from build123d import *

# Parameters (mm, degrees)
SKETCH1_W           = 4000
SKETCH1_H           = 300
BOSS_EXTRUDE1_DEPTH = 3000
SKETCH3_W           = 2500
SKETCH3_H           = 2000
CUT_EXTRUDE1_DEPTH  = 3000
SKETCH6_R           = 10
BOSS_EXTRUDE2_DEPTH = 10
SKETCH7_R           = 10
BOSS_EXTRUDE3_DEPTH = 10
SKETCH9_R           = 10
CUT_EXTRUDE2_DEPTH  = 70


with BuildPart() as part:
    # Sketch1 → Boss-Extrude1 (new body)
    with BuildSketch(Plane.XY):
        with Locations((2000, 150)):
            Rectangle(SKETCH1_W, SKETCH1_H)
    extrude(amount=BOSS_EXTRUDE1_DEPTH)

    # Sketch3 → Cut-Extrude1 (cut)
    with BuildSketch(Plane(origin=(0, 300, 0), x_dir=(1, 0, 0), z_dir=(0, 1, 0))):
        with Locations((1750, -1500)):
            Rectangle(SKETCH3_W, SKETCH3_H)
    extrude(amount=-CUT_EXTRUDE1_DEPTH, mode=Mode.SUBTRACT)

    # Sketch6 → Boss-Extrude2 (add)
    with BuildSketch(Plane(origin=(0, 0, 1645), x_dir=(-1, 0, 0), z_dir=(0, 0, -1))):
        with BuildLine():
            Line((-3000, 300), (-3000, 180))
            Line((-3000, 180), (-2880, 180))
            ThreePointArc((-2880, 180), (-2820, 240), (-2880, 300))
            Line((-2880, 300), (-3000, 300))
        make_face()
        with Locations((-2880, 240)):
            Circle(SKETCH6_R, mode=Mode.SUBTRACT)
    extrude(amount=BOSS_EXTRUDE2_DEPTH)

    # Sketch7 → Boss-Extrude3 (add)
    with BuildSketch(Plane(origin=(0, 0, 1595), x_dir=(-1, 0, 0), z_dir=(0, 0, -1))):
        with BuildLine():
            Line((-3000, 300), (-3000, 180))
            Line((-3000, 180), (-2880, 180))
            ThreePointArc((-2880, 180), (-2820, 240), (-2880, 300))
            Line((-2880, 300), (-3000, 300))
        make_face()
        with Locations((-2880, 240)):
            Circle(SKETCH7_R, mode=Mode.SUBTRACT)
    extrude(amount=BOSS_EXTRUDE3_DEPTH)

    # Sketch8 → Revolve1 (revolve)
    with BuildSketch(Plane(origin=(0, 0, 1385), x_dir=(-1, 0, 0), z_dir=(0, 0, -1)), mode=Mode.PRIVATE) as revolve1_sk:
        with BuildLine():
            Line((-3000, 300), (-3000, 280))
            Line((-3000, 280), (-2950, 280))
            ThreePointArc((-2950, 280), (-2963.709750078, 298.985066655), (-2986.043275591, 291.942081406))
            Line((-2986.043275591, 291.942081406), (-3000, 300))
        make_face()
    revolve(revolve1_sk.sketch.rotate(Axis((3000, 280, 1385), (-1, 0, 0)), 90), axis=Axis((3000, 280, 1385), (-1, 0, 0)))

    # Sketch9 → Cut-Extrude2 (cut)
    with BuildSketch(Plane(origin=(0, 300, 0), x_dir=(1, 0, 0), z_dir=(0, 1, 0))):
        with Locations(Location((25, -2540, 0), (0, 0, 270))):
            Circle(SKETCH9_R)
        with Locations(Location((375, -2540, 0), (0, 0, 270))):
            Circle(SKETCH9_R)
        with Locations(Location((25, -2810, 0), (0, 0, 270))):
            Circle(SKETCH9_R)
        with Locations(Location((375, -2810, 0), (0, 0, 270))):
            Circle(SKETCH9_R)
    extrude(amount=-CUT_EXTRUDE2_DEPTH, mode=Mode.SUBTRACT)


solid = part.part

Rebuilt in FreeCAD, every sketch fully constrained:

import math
import FreeCAD as App
import Part
import Sketcher

V = App.Vector
Q = App.Units.Quantity

doc = App.newDocument("Part")
body = doc.addObject("PartDesign::Body", "Body")

# Sketch on XY plane
sketch1 = body.newObject("Sketcher::SketchObject", "Sketch")
sketch1.AttachmentSupport = (doc.getObject("XY_Plane"), [""])
sketch1.MapMode = "FlatFace"
sketch1.addGeometry([
    Part.LineSegment(V(0, 300, 0), V(0, 0, 0)),
    Part.LineSegment(V(0, 0, 0), V(4000, 0, 0)),
    Part.LineSegment(V(4000, 0, 0), V(4000, 300, 0)),
    Part.LineSegment(V(4000, 300, 0), V(0, 300, 0)),
], False)
sketch1.addConstraint([
    Sketcher.Constraint("Coincident", 0, 2, 1, 1),
    Sketcher.Constraint("Coincident", 1, 2, 2, 1),
    Sketcher.Constraint("Coincident", 2, 2, 3, 1),
    Sketcher.Constraint("Coincident", 3, 2, 0, 1),
    Sketcher.Constraint("Vertical", 0),
    Sketcher.Constraint("Horizontal", 1),
    Sketcher.Constraint("Vertical", 2),
    Sketcher.Constraint("Horizontal", 3),
    Sketcher.Constraint("Coincident", 0, 2, -1, 1),
    Sketcher.Constraint("DistanceX", 1, 1, 1, 2, Q("4000 mm")),
    Sketcher.Constraint("DistanceY", 0, 2, 0, 1, Q("300 mm")),
])
pad1 = body.newObject("PartDesign::Pad", "Pad")
pad1.Profile = sketch1
pad1.Length = 3000

# Sketch on XZ plane
sketch2 = body.newObject("Sketcher::SketchObject", "Sketch001")
sketch2.AttachmentSupport = (doc.getObject("XZ_Plane"), [""])
sketch2.MapMode = "FlatFace"
sketch2.AttachmentOffset = App.Placement(V(0, 0, -300), App.Rotation())
sketch2.addGeometry([
    Part.LineSegment(V(500, 500, 0), V(500, 2500, 0)),
    Part.LineSegment(V(500, 2500, 0), V(3000, 2500, 0)),
    Part.LineSegment(V(3000, 2500, 0), V(3000, 500, 0)),
    Part.LineSegment(V(3000, 500, 0), V(500, 500, 0)),
], False)
sketch2.addConstraint([
    Sketcher.Constraint("Coincident", 0, 2, 1, 1),
    Sketcher.Constraint("Coincident", 1, 2, 2, 1),
    Sketcher.Constraint("Coincident", 2, 2, 3, 1),
    Sketcher.Constraint("Coincident", 3, 2, 0, 1),
    Sketcher.Constraint("Vertical", 0),
    Sketcher.Constraint("Horizontal", 1),
    Sketcher.Constraint("Vertical", 2),
    Sketcher.Constraint("Horizontal", 3),
    Sketcher.Constraint("DistanceX", 1, 1, 1, 2, Q("2500 mm")),
    Sketcher.Constraint("DistanceY", 0, 1, 0, 2, Q("2000 mm")),
    Sketcher.Constraint("DistanceX", -1, 1, 0, 2, Q("500 mm")),
    Sketcher.Constraint("DistanceY", -1, 1, 0, 2, Q("2500 mm")),
])
pocket1 = body.newObject("PartDesign::Pocket", "Pocket")
pocket1.Profile = sketch2
pocket1.Length = 3000
pocket1.Reversed = True

# Sketch on XY plane
sketch3 = body.newObject("Sketcher::SketchObject", "Sketch002")
sketch3.AttachmentSupport = (doc.getObject("XY_Plane"), [""])
sketch3.MapMode = "FlatFace"
sketch3.AttachmentOffset = App.Placement(V(0, 0, 1645), App.Rotation())
sketch3.addGeometry([
    Part.LineSegment(V(3000, 300, 0), V(3000, 180, 0)),  # 0
    Part.LineSegment(V(3000, 180, 0), V(2880, 180, 0)),  # 1
    Part.ArcOfCircle(Part.Circle(V(2880, 240, 0), V(0, 0, 1), 60), math.radians(90), math.radians(270)),  # 2
    Part.LineSegment(V(2880, 300, 0), V(3000, 300, 0)),  # 3
    Part.Circle(V(2880, 240, 0), V(0, 0, 1), 10),  # 4
], False)
sketch3.addConstraint([
    Sketcher.Constraint("Coincident", 0, 2, 1, 1),
    Sketcher.Constraint("Tangent", 1, 2, 2, 2),
    Sketcher.Constraint("Tangent", 2, 1, 3, 1),
    Sketcher.Constraint("Coincident", 3, 2, 0, 1),
    Sketcher.Constraint("Vertical", 0),
    Sketcher.Constraint("Horizontal", 1),
    Sketcher.Constraint("Horizontal", 3),
    Sketcher.Constraint("Coincident", 4, 3, 2, 3),
    Sketcher.Constraint("Equal", 3, 0),
    Sketcher.Constraint("Diameter", 4, Q("20 mm")),
    Sketcher.Constraint("Radius", 2, Q("60 mm")),
    Sketcher.Constraint("DistanceX", -1, 1, 2, 3, Q("2880 mm")),
    Sketcher.Constraint("DistanceY", -1, 1, 2, 3, Q("240 mm")),
])
pad2 = body.newObject("PartDesign::Pad", "Pad001")
pad2.Profile = sketch3
pad2.Length = 10
pad2.Reversed = True

# Sketch on XY plane
sketch4 = body.newObject("Sketcher::SketchObject", "Sketch003")
sketch4.AttachmentSupport = (doc.getObject("XY_Plane"), [""])
sketch4.MapMode = "FlatFace"
sketch4.AttachmentOffset = App.Placement(V(0, 0, 1595), App.Rotation())
sketch4.addGeometry([
    Part.LineSegment(V(3000, 300, 0), V(3000, 180, 0)),  # 0
    Part.LineSegment(V(3000, 180, 0), V(2880, 180, 0)),  # 1
    Part.ArcOfCircle(Part.Circle(V(2880, 240, 0), V(0, 0, 1), 60), math.radians(90), math.radians(270)),  # 2
    Part.LineSegment(V(2880, 300, 0), V(3000, 300, 0)),  # 3
    Part.Circle(V(2880, 240, 0), V(0, 0, 1), 10),  # 4
], False)
sketch4.addConstraint([
    Sketcher.Constraint("Coincident", 0, 2, 1, 1),
    Sketcher.Constraint("Tangent", 1, 2, 2, 2),
    Sketcher.Constraint("Tangent", 2, 1, 3, 1),
    Sketcher.Constraint("Coincident", 3, 2, 0, 1),
    Sketcher.Constraint("Vertical", 0),
    Sketcher.Constraint("Horizontal", 1),
    Sketcher.Constraint("Horizontal", 3),
    Sketcher.Constraint("Coincident", 4, 3, 2, 3),
    Sketcher.Constraint("Equal", 3, 0),
    Sketcher.Constraint("Diameter", 4, Q("20 mm")),
    Sketcher.Constraint("Radius", 2, Q("60 mm")),
    Sketcher.Constraint("DistanceX", -1, 1, 2, 3, Q("2880 mm")),
    Sketcher.Constraint("DistanceY", -1, 1, 2, 3, Q("240 mm")),
])
pad3 = body.newObject("PartDesign::Pad", "Pad002")
pad3.Profile = sketch4
pad3.Length = 10
pad3.Reversed = True

# Sketch on XY plane
sketch5 = body.newObject("Sketcher::SketchObject", "Sketch004")
sketch5.AttachmentSupport = (doc.getObject("XY_Plane"), [""])
sketch5.MapMode = "FlatFace"
sketch5.AttachmentOffset = App.Placement(V(0, 0, 1385), App.Rotation())
sketch5.addGeometry([
    Part.LineSegment(V(3000, 300, 0), V(3000, 280, 0)),
    Part.LineSegment(V(3000, 280, 0), V(2950, 280, 0)),
    Part.ArcOfCircle(Part.Circle(V(2970, 280, 0), V(0, 0, 1), 20), math.radians(36.662772), math.radians(180)),
    Part.LineSegment(V(2986.043276, 291.942081, 0), V(3000, 300, 0)),
], False)
sketch5.addGeometry(Part.LineSegment(V(3000, 280, 0), V(2950, 280, 0)), True)  # axis
sketch5.addConstraint([
    Sketcher.Constraint("Coincident", 0, 2, 1, 1),
    Sketcher.Constraint("Coincident", 1, 2, 2, 2),
    Sketcher.Constraint("Coincident", 2, 1, 3, 1),
    Sketcher.Constraint("Coincident", 3, 2, 0, 1),
    Sketcher.Constraint("Vertical", 0),
    Sketcher.Constraint("Horizontal", 1),
    Sketcher.Constraint("Horizontal", 4),
    Sketcher.Constraint("Coincident", 4, 1, 0, 2),
    Sketcher.Constraint("Horizontal", 2, 3, 0, 2),
    Sketcher.Constraint("Equal", 1, 4),
    Sketcher.Constraint("Radius", 2, Q("20 mm")),
    Sketcher.Constraint("DistanceX", 1, 2, 1, 1, Q("50 mm")),
    Sketcher.Constraint("DistanceY", 0, 2, 0, 1, Q("20 mm")),
    Sketcher.Constraint("Angle", 3, Q("30 deg")),
    Sketcher.Constraint("DistanceX", -1, 1, 2, 3, Q("2970 mm")),
    Sketcher.Constraint("DistanceY", -1, 1, 2, 3, Q("280 mm")),
])
revolution = body.newObject("PartDesign::Revolution", "Revolution")
revolution.Profile = sketch5
revolution.ReferenceAxis = (sketch5, ["Axis0"])
revolution.Angle = 360

# Sketch on XZ plane
sketch6 = body.newObject("Sketcher::SketchObject", "Sketch005")
sketch6.AttachmentSupport = (doc.getObject("XZ_Plane"), [""])
sketch6.MapMode = "FlatFace"
sketch6.AttachmentOffset = App.Placement(V(0, 0, -300), App.Rotation())
sketch6.addGeometry([
    Part.Circle(V(25, 2540, 0), V(0, 0, 1), 10),
    Part.Circle(V(375, 2540, 0), V(0, 0, 1), 10),
    Part.Circle(V(25, 2810, 0), V(0, 0, 1), 10),
    Part.Circle(V(375, 2810, 0), V(0, 0, 1), 10),
], False)
sketch6.addConstraint([
    Sketcher.Constraint("Equal", 0, 1),
    Sketcher.Constraint("Equal", 1, 2),
    Sketcher.Constraint("Equal", 2, 3),
    Sketcher.Constraint("Horizontal", 0, 3, 1, 3),
    Sketcher.Constraint("Horizontal", 2, 3, 3, 3),
    Sketcher.Constraint("Vertical", 0, 3, 2, 3),
    Sketcher.Constraint("Vertical", 1, 3, 3, 3),
    Sketcher.Constraint("Diameter", 0, Q("20 mm")),
    Sketcher.Constraint("DistanceX", -1, 1, 0, 3, Q("25 mm")),
    Sketcher.Constraint("DistanceY", -1, 1, 0, 3, Q("2540 mm")),
    Sketcher.Constraint("DistanceX", -1, 1, 1, 3, Q("375 mm")),
    Sketcher.Constraint("DistanceY", -1, 1, 2, 3, Q("2810 mm")),
])
pocket2 = body.newObject("PartDesign::Pocket", "Pocket001")
pocket2.Profile = sketch6
pocket2.Length = 70
pocket2.Reversed = True

doc.recompute()
